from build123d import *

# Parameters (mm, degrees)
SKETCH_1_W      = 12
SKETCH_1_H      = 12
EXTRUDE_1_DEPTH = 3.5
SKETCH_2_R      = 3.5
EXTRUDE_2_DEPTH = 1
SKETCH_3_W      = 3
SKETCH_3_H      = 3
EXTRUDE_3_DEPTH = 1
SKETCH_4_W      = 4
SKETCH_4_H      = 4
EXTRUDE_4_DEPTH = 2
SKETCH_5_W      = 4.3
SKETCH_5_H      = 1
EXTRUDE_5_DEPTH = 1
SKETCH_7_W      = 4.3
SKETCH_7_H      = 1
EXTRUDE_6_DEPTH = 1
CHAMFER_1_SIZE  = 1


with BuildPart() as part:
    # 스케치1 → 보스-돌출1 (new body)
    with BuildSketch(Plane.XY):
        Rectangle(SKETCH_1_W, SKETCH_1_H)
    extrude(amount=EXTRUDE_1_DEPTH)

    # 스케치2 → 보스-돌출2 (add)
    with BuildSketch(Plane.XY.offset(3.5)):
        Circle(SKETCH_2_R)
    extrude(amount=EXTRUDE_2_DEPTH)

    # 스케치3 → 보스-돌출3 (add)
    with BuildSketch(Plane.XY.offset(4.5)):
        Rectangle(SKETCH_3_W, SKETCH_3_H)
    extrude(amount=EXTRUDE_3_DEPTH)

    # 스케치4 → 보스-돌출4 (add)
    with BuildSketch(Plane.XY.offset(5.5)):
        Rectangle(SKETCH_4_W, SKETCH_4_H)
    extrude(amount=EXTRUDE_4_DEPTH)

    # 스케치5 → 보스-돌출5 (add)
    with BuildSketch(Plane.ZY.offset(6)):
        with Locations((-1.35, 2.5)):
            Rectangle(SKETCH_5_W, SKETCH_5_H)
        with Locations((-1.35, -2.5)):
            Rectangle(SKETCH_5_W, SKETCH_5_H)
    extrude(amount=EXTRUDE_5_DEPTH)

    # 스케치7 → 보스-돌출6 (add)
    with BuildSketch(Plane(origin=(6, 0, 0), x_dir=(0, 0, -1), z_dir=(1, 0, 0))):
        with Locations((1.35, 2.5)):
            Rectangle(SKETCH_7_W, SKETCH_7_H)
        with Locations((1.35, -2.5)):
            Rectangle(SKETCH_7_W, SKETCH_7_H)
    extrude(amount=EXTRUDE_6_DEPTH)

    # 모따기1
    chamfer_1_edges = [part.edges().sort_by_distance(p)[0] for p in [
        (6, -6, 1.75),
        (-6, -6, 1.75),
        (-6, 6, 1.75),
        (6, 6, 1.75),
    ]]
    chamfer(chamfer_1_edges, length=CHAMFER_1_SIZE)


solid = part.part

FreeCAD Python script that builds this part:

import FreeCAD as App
import Part
import Sketcher

V = App.Vector
Q = App.Units.Quantity


def edges_at(feature, points):
    """Names of the edges that pass closest to the given points."""
    edges = feature.Shape.Edges
    near = lambda p: min(range(len(edges)), key=lambda i: edges[i].distToShape(Part.Vertex(*p))[0])
    return sorted({f"Edge{near(p) + 1}" for p in points})


def add_polygon(sketch, points):
    """Adds a closed chain of lines whose ends are joined by coincident constraints."""
    first, n = sketch.GeometryCount, len(points)
    for a, b in zip(points, points[1:] + points[:1]):
        sketch.addGeometry(Part.LineSegment(App.Vector(*a, 0), App.Vector(*b, 0)), False)
    for i in range(n):
        sketch.addConstraint(Sketcher.Constraint("Coincident", first + i, 2, first + (i + 1) % n, 1))

doc = App.newDocument("Part")
body = doc.addObject("PartDesign::Body", "Body")

sketch1 = doc.addObject("Sketcher::SketchObject", "Sketch")
body.addObject(sketch1)
sketch1.AttachmentSupport = (doc.XY_Plane, [""])
sketch1.MapMode = "FlatFace"
add_polygon(sketch1, [(-6, 6), (-6, -6), (6, -6), (6, 6)])
sketch1.addConstraint([
    Sketcher.Constraint("Vertical", 0),
    Sketcher.Constraint("Horizontal", 1),
    Sketcher.Constraint("Vertical", 2),
    Sketcher.Constraint("Horizontal", 3),
    Sketcher.Constraint("Symmetric", 0, 2, 2, 2, -1, 1),
    Sketcher.Constraint("Equal", 3, 0),
    Sketcher.Constraint("DistanceX", 1, 1, 1, 2, Q("12 mm")),
])
pad1 = doc.addObject("PartDesign::Pad", "Pad")
body.addObject(pad1)
pad1.Profile = sketch1
pad1.Length = 3.5

sketch2 = doc.addObject("Sketcher::SketchObject", "Sketch001")
body.addObject(sketch2)
sketch2.AttachmentSupport = (doc.XY_Plane, [""])
sketch2.MapMode = "FlatFace"
sketch2.AttachmentOffset = App.Placement(V(0, 0, 3.5), App.Rotation())
sketch2.addGeometry(Part.Circle(V(0, 0, 0), V(0, 0, 1), 3.5), False)
sketch2.addConstraint([
    Sketcher.Constraint("Coincident", 0, 3, -1, 1),
    Sketcher.Constraint("Diameter", 0, Q("7 mm")),
])
pad2 = doc.addObject("PartDesign::Pad", "Pad001")
body.addObject(pad2)
pad2.Profile = sketch2
pad2.Length = 1

sketch3 = doc.addObject("Sketcher::SketchObject", "Sketch002")
body.addObject(sketch3)
sketch3.AttachmentSupport = (doc.XY_Plane, [""])
sketch3.MapMode = "FlatFace"
sketch3.AttachmentOffset = App.Placement(V(0, 0, 4.5), App.Rotation())
add_polygon(sketch3, [(-1.5, 1.5), (-1.5, -1.5), (1.5, -1.5), (1.5, 1.5)])
sketch3.addConstraint([
    Sketcher.Constraint("Vertical", 0),
    Sketcher.Constraint("Horizontal", 1),
    Sketcher.Constraint("Vertical", 2),
    Sketcher.Constraint("Horizontal", 3),
    Sketcher.Constraint("Symmetric", 0, 2, 2, 2, -1, 1),
    Sketcher.Constraint("Equal", 3, 0),
    Sketcher.Constraint("DistanceX", 1, 1, 1, 2, Q("3 mm")),
])
pad3 = doc.addObject("PartDesign::Pad", "Pad002")
body.addObject(pad3)
pad3.Profile = sketch3
pad3.Length = 1

sketch4 = doc.addObject("Sketcher::SketchObject", "Sketch003")
body.addObject(sketch4)
sketch4.AttachmentSupport = (doc.XY_Plane, [""])
sketch4.MapMode = "FlatFace"
sketch4.AttachmentOffset = App.Placement(V(0, 0, 5.5), App.Rotation())
add_polygon(sketch4, [(-2, 2), (-2, -2), (2, -2), (2, 2)])
sketch4.addConstraint([
    Sketcher.Constraint("Vertical", 0),
    Sketcher.Constraint("Horizontal", 1),
    Sketcher.Constraint("Vertical", 2),
    Sketcher.Constraint("Horizontal", 3),
    Sketcher.Constraint("Symmetric", 0, 2, 2, 2, -1, 1),
    Sketcher.Constraint("Equal", 3, 0),
    Sketcher.Constraint("DistanceX", 1, 1, 1, 2, Q("4 mm")),
])
pad4 = doc.addObject("PartDesign::Pad", "Pad003")
body.addObject(pad4)
pad4.Profile = sketch4
pad4.Length = 2

sketch5 = doc.addObject("Sketcher::SketchObject", "Sketch004")
body.addObject(sketch5)
sketch5.AttachmentSupport = (doc.YZ_Plane, [""])
sketch5.MapMode = "FlatFace"
sketch5.AttachmentOffset = App.Placement(V(0, 0, -6), App.Rotation())
add_polygon(sketch5, [(3, -3.5), (2, -3.5), (2, 0.8), (3, 0.8)])
add_polygon(sketch5, [(-2, -3.5), (-3, -3.5), (-3, 0.8), (-2, 0.8)])
sketch5.addConstraint([
    Sketcher.Constraint("Horizontal", 0),
    Sketcher.Constraint("Vertical", 1),
    Sketcher.Constraint("Horizontal", 2),
    Sketcher.Constraint("Vertical", 3),
    Sketcher.Constraint("Horizontal", 4),
    Sketcher.Constraint("Vertical", 5),
    Sketcher.Constraint("Horizontal", 6),
    Sketcher.Constraint("Vertical", 7),
    Sketcher.Constraint("Symmetric", 3, 2, 4, 2, -2),
    Sketcher.Constraint("Symmetric", 1, 2, 6, 2, -2),
    Sketcher.Constraint("DistanceX", 0, 2, 0, 1, Q("1 mm")),
    Sketcher.Constraint("DistanceY", 1, 1, 1, 2, Q("4.3 mm")),
    Sketcher.Constraint("DistanceX", -1, 1, 0, 2, Q("2 mm")),
    Sketcher.Constraint("DistanceY", 0, 2, -1, 1, Q("3.5 mm")),
])
pad5 = doc.addObject("PartDesign::Pad", "Pad004")
body.addObject(pad5)
pad5.Profile = sketch5
pad5.Length = 1
pad5.Reversed = True

sketch6 = doc.addObject("Sketcher::SketchObject", "Sketch005")
body.addObject(sketch6)
sketch6.AttachmentSupport = (doc.YZ_Plane, [""])
sketch6.MapMode = "FlatFace"
sketch6.AttachmentOffset = App.Placement(V(0, 0, 6), App.Rotation())
add_polygon(sketch6, [(3, 0.8), (2, 0.8), (2, -3.5), (3, -3.5)])
add_polygon(sketch6, [(-2, 0.8), (-3, 0.8), (-3, -3.5), (-2, -3.5)])
sketch6.addConstraint([
    Sketcher.Constraint("Horizontal", 0),
    Sketcher.Constraint("Vertical", 1),
    Sketcher.Constraint("Horizontal", 2),
    Sketcher.Constraint("Vertical", 3),
    Sketcher.Constraint("Horizontal", 4),
    Sketcher.Constraint("Vertical", 5),
    Sketcher.Constraint("Horizontal", 6),
    Sketcher.Constraint("Vertical", 7),
    Sketcher.Constraint("Symmetric", 3, 2, 4, 2, -2),
    Sketcher.Constraint("Symmetric", 1, 2, 6, 2, -2),
    Sketcher.Constraint("DistanceX", 0, 2, 0, 1, Q("1 mm")),
    Sketcher.Constraint("DistanceY", 1, 2, 1, 1, Q("4.3 mm")),
    Sketcher.Constraint("DistanceX", -1, 1, 0, 2, Q("2 mm")),
    Sketcher.Constraint("DistanceY", -1, 1, 0, 2, Q("0.8 mm")),
])
pad6 = doc.addObject("PartDesign::Pad", "Pad005")
body.addObject(pad6)
pad6.Profile = sketch6
pad6.Length = 1
doc.recompute()

chamfer = doc.addObject("PartDesign::Chamfer", "Chamfer")
body.addObject(chamfer)
chamfer.Base = (pad6, edges_at(pad6, [
    (6, -6, 1.75),
    (-6, -6, 1.75),
    (-6, 6, 1.75),
    (6, 6, 1.75),
]))
chamfer.Size = 1

doc.recompute()
